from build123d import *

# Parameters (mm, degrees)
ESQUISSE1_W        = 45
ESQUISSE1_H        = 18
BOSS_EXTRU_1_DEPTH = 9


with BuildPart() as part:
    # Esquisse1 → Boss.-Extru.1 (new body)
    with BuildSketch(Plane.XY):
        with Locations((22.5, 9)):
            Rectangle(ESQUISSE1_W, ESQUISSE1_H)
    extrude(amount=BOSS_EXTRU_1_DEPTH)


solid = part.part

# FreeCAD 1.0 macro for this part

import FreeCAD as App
import Part
import Sketcher
Q = App.Units.Quantity

doc = App.newDocument("Part")
body = doc.addObject("PartDesign::Body", "Body")

# Sketch on XY plane
sketch1 = body.newObject("Sketcher::SketchObject", "Sketch")
sketch1.AttachmentSupport = (doc.getObject("XY_Plane"), [""])
sketch1.MapMode = "FlatFace"
sketch1.addGeometry([
    Part.LineSegment(App.Vector(0, 18, 0), App.Vector(0, 0, 0)),
    Part.LineSegment(App.Vector(0, 0, 0), App.Vector(45, 0, 0)),
    Part.LineSegment(App.Vector(45, 0, 0), App.Vector(45, 18, 0)),
    Part.LineSegment(App.Vector(45, 18, 0), App.Vector(0, 18, 0)),
], False)
sketch1.addConstraint([
    Sketcher.Constraint("Coincident", 0, 2, 1, 1),
    Sketcher.Constraint("Coincident", 1, 2, 2, 1),
    Sketcher.Constraint("Coincident", 2, 2, 3, 1),
    Sketcher.Constraint("Coincident", 3, 2, 0, 1),
    Sketcher.Constraint("Vertical", 0),
    Sketcher.Constraint("Horizontal", 1),
    Sketcher.Constraint("Vertical", 2),
    Sketcher.Constraint("Horizontal", 3),
    Sketcher.Constraint("Coincident", 0, 2, -1, 1),
    Sketcher.Constraint("DistanceX", 1, 1, 1, 2, Q("45 mm")),
    Sketcher.Constraint("DistanceY", 0, 2, 0, 1, Q("18 mm")),
])
pad1 = body.newObject("PartDesign::Pad", "Pad")
pad1.Profile = sketch1
pad1.Length = 9

doc.recompute()
